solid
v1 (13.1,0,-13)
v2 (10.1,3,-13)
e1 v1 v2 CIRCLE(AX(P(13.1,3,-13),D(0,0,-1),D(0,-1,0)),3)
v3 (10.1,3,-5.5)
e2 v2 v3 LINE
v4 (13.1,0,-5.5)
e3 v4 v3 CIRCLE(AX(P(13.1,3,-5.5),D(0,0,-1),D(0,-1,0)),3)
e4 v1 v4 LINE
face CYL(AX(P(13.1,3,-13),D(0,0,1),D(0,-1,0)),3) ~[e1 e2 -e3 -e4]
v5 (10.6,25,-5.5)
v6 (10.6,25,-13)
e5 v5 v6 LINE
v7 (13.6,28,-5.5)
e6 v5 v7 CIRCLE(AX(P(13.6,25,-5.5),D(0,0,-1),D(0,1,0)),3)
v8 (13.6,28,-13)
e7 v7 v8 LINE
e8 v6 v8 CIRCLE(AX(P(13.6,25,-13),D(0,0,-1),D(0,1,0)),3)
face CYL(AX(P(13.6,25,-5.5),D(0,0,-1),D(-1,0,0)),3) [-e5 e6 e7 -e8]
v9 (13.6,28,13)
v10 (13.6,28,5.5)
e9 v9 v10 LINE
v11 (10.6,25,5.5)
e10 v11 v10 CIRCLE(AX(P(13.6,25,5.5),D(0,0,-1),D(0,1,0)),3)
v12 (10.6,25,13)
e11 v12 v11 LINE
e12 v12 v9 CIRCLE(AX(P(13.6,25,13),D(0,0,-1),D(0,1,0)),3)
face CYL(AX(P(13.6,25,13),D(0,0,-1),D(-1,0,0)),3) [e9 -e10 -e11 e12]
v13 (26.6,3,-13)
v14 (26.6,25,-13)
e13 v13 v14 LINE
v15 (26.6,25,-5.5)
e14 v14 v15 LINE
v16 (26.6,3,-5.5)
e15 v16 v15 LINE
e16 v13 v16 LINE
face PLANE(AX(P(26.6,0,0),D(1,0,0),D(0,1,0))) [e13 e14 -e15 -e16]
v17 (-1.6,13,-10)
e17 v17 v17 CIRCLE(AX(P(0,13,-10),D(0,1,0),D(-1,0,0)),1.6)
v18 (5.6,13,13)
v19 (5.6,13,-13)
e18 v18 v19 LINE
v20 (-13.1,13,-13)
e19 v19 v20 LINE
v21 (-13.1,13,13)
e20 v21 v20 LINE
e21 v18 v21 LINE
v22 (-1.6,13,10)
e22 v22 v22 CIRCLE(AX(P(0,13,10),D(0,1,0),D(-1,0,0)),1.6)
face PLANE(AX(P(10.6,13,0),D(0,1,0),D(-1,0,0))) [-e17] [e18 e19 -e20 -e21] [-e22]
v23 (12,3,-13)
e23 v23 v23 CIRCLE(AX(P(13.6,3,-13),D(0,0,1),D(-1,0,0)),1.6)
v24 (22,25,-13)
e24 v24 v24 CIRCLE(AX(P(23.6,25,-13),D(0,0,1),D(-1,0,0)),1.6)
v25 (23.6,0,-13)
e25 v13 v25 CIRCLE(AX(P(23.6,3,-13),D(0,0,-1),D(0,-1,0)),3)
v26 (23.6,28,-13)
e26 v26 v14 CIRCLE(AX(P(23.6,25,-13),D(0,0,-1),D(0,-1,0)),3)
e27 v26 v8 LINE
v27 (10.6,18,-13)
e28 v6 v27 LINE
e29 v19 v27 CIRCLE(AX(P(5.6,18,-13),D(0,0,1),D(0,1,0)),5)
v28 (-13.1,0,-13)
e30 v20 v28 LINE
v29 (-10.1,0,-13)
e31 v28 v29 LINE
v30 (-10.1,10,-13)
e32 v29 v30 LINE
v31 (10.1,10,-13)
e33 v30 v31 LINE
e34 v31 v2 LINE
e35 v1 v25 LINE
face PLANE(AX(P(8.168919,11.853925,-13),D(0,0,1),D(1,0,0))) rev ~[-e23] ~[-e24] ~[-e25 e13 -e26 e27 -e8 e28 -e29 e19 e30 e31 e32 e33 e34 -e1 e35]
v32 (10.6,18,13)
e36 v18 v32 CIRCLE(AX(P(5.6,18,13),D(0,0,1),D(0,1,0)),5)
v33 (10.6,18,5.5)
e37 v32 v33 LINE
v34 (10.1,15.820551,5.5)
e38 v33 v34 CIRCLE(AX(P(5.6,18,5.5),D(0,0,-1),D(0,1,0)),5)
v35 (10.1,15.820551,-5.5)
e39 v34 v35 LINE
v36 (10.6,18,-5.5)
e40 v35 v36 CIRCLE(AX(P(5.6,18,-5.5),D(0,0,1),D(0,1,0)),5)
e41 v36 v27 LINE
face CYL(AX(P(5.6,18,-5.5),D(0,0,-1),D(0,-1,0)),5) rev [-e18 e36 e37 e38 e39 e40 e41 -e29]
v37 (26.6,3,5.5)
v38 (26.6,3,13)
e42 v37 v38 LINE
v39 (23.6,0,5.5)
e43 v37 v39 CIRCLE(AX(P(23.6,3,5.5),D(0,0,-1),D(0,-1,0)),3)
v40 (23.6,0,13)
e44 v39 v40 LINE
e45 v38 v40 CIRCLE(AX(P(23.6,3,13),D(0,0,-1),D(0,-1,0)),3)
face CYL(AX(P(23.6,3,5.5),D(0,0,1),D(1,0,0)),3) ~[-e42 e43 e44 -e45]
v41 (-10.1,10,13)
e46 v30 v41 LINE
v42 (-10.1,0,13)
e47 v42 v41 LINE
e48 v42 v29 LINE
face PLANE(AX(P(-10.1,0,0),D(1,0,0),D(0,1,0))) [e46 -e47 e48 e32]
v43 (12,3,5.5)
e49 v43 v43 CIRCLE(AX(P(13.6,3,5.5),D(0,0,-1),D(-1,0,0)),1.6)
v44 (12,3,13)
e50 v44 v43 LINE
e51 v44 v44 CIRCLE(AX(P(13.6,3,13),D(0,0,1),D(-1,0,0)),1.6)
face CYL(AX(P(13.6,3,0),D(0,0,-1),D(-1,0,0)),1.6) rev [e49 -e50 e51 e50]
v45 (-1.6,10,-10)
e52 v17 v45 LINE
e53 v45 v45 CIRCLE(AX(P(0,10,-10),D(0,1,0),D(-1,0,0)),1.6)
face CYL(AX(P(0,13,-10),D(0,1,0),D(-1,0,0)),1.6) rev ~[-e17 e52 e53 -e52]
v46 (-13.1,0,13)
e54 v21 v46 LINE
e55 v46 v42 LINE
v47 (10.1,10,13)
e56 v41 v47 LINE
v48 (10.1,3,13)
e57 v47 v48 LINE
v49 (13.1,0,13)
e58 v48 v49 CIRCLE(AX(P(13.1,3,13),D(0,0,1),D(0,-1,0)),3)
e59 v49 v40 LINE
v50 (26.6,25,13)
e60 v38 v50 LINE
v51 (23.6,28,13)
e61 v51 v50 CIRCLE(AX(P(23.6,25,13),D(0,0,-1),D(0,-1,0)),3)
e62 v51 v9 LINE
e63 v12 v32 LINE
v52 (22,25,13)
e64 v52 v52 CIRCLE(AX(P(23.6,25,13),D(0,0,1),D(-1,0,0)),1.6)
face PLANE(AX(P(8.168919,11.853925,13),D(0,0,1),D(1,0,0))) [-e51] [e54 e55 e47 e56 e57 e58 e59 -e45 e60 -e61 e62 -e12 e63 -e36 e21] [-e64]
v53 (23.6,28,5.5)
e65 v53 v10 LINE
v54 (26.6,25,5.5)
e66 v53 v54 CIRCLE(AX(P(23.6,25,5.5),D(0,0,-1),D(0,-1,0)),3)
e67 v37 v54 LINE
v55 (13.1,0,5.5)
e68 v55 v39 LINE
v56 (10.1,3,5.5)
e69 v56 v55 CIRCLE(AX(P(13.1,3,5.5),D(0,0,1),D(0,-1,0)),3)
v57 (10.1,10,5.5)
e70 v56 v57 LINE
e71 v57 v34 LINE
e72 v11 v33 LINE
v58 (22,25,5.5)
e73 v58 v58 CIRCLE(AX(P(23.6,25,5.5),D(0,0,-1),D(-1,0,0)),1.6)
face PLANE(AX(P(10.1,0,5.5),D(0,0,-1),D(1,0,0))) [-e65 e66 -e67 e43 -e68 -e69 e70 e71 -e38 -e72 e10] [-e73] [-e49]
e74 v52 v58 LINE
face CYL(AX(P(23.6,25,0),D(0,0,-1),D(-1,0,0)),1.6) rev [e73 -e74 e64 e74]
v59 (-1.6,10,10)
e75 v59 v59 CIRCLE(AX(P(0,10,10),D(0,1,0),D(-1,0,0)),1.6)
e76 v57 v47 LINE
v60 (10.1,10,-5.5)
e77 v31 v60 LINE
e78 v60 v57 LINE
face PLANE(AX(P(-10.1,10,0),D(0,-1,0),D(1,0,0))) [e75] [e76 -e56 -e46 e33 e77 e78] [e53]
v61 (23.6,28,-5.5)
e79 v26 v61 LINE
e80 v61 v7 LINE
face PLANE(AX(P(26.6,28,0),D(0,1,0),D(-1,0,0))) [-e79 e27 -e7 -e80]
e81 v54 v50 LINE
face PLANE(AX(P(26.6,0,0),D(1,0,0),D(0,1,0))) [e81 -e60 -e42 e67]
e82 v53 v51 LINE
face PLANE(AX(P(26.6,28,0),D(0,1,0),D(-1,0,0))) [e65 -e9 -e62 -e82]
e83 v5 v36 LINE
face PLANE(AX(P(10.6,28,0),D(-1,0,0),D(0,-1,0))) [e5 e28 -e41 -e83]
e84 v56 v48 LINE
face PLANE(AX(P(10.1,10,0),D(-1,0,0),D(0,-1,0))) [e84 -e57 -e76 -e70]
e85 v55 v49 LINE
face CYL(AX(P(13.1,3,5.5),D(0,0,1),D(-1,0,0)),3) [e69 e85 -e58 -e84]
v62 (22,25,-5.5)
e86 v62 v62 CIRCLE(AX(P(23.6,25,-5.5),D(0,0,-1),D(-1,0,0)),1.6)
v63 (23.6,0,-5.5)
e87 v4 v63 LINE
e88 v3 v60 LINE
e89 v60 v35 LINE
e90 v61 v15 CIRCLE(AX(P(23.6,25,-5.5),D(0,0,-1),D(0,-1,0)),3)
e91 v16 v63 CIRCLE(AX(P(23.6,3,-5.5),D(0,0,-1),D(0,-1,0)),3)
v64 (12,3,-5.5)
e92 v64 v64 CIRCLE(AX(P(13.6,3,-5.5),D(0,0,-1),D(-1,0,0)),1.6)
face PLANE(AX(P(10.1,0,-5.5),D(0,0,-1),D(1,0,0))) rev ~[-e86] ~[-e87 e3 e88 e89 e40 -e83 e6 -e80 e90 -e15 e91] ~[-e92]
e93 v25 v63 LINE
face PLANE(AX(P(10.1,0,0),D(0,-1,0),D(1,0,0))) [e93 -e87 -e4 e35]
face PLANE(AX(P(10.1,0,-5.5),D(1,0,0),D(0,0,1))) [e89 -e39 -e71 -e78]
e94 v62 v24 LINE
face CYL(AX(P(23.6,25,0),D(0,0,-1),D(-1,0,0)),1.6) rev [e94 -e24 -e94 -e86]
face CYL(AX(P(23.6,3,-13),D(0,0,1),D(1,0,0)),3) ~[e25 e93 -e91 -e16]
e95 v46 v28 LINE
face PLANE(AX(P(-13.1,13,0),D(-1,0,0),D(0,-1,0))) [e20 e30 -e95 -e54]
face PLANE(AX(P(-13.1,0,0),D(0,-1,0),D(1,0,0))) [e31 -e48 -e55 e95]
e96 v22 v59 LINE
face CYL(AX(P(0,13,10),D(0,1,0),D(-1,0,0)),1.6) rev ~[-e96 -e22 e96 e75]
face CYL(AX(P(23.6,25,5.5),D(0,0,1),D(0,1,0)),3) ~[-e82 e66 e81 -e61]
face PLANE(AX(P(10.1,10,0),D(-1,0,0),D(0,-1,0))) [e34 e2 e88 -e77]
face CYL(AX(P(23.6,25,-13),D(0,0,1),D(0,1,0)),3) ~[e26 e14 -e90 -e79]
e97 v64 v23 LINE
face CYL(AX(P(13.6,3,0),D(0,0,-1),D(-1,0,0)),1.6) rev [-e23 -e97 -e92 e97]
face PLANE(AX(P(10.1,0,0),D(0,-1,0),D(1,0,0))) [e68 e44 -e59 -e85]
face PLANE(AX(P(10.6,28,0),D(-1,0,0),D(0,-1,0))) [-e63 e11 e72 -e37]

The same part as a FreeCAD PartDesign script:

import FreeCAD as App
import Part
import Sketcher
Q = App.Units.Quantity


def edges_at(feature, points):
    """Names of the edges that pass closest to the given points."""
    edges = feature.Shape.Edges
    near = lambda p: min(range(len(edges)), key=lambda i: edges[i].distToShape(Part.Vertex(*p))[0])
    return sorted({f"Edge{near(p) + 1}" for p in points})


def add_polygon(sketch, points):
    """Adds a closed chain of lines whose ends are joined by coincident constraints."""
    first, n = sketch.GeometryCount, len(points)
    for a, b in zip(points, points[1:] + points[:1]):
        sketch.addGeometry(Part.LineSegment(App.Vector(*a, 0), App.Vector(*b, 0)), False)
    for i in range(n):
        sketch.addConstraint(Sketcher.Constraint("Coincident", first + i, 2, first + (i + 1) % n, 1))

doc = App.newDocument("Part")
body = doc.addObject("PartDesign::Body", "Body")

sketch1 = doc.addObject("Sketcher::SketchObject", "Sketch")
body.addObject(sketch1)
sketch1.AttachmentSupport = (doc.XY_Plane, [""])
sketch1.MapMode = "FlatFace"
add_polygon(sketch1, [(-10.1, 0), (-10.1, 10), (10.1, 10), (10.1, 0), (26.6, 0), (26.6, 28), (10.6, 28), (10.6, 13), (-13.1, 13), (-13.1, 0)])
sketch1.addGeometry(Part.Circle(App.Vector(13.6, 3, 0), App.Vector(0, 0, 1), 1.6), False)
sketch1.addGeometry(Part.Circle(App.Vector(23.6, 25, 0), App.Vector(0, 0, 1), 1.6), False)
sketch1.addConstraint(Sketcher.Constraint("Vertical", 0))
sketch1.addConstraint(Sketcher.Constraint("Horizontal", 1))
sketch1.addConstraint(Sketcher.Constraint("Vertical", 2))
sketch1.addConstraint(Sketcher.Constraint("Horizontal", 3))
sketch1.addConstraint(Sketcher.Constraint("Vertical", 4))
sketch1.addConstraint(Sketcher.Constraint("Horizontal", 5))
sketch1.addConstraint(Sketcher.Constraint("Vertical", 6))
sketch1.addConstraint(Sketcher.Constraint("Horizontal", 7))
sketch1.addConstraint(Sketcher.Constraint("Vertical", 8))
sketch1.addConstraint(Sketcher.Constraint("Horizontal", 9))
sketch1.addConstraint(Sketcher.Constraint("Equal", 10, 11))
sketch1.addConstraint(Sketcher.Constraint("Symmetric", 2, 2, 9, 2, -1, 1))
sketch1.addConstraint(Sketcher.Constraint("PointOnObject", 2, 2, -1))
sketch1.addConstraint(Sketcher.Constraint("Diameter", 10, Q("3.2 mm")))
sketch1.addConstraint(Sketcher.Constraint("DistanceX", 5, 2, 5, 1, Q("16 mm")))
sketch1.addConstraint(Sketcher.Constraint("DistanceX", 9, 1, 9, 2, Q("3 mm")))
sketch1.addConstraint(Sketcher.Constraint("DistanceY", 0, 1, 0, 2, Q("10 mm")))
sketch1.addConstraint(Sketcher.Constraint("DistanceY", 4, 1, 4, 2, Q("28 mm")))
sketch1.addConstraint(Sketcher.Constraint("DistanceY", 6, 2, 6, 1, Q("15 mm")))
sketch1.addConstraint(Sketcher.Constraint("DistanceX", 1, 1, 1, 2, Q("20.2 mm")))
sketch1.addConstraint(Sketcher.Constraint("DistanceX", 3, 1, 3, 2, Q("16.5 mm")))
sketch1.addConstraint(Sketcher.Constraint("DistanceY", -1, 1, 10, 3, Q("3 mm")))
sketch1.addConstraint(Sketcher.Constraint("DistanceY", -1, 1, 11, 3, Q("25 mm")))
sketch1.addConstraint(Sketcher.Constraint("DistanceX", 10, 3, 11, 3, Q("10 mm")))
sketch1.addConstraint(Sketcher.Constraint("DistanceX", 10, 3, 3, 2, Q("13 mm")))
pad1 = doc.addObject("PartDesign::Pad", "Pad")
body.addObject(pad1)
pad1.Profile = sketch1
pad1.Length = 26
pad1.Midplane = True

sketch2 = doc.addObject("Sketcher::SketchObject", "Sketch001")
body.addObject(sketch2)
sketch2.AttachmentSupport = (doc.XZ_Plane, [""])
sketch2.MapMode = "FlatFace"
add_polygon(sketch2, [(10.1, 5.5), (10.1, -5.5), (26.6, -5.5), (26.6, 5.5)])
sketch2.addConstraint(Sketcher.Constraint("Vertical", 0))
sketch2.addConstraint(Sketcher.Constraint("Horizontal", 1))
sketch2.addConstraint(Sketcher.Constraint("Vertical", 2))
sketch2.addConstraint(Sketcher.Constraint("Horizontal", 3))
sketch2.addConstraint(Sketcher.Constraint("DistanceY", 0, 2, 0, 1, Q("11 mm")))
sketch2.addConstraint(Sketcher.Constraint("DistanceX", 1, 1, 1, 2, Q("16.5 mm")))
sketch2.addConstraint(Sketcher.Constraint("DistanceX", -1, 1, 0, 2, Q("10.1 mm")))
sketch2.addConstraint(Sketcher.Constraint("DistanceY", 0, 2, -1, 1, Q("5.5 mm")))
pocket1 = doc.addObject("PartDesign::Pocket", "Pocket")
body.addObject(pocket1)
pocket1.Profile = sketch2
pocket1.Type = "ThroughAll"

sketch3 = doc.addObject("Sketcher::SketchObject", "Sketch002")
body.addObject(sketch3)
sketch3.AttachmentSupport = (doc.XZ_Plane, [""])
sketch3.MapMode = "FlatFace"
sketch3.AttachmentOffset = App.Placement(App.Vector(0, 0, -13), App.Rotation())
sketch3.addGeometry(Part.Circle(App.Vector(0, -10, 0), App.Vector(0, 0, 1), 1.6), False)
sketch3.addGeometry(Part.Circle(App.Vector(0, 10, 0), App.Vector(0, 0, 1), 1.6), False)
sketch3.addConstraint(Sketcher.Constraint("Equal", 0, 1))
sketch3.addConstraint(Sketcher.Constraint("Symmetric", 0, 3, 1, 3, -1, 1))
sketch3.addConstraint(Sketcher.Constraint("PointOnObject", 0, 3, -2))
sketch3.addConstraint(Sketcher.Constraint("Diameter", 0, Q("3.2 mm")))
sketch3.addConstraint(Sketcher.Constraint("DistanceY", 0, 3, -1, 1, Q("10 mm")))
pocket2 = doc.addObject("PartDesign::Pocket", "Pocket001")
body.addObject(pocket2)
pocket2.Profile = sketch3
pocket2.Type = "ThroughAll"
pocket2.Reversed = True
doc.recompute()

fillet = doc.addObject("PartDesign::Fillet", "Fillet")
body.addObject(fillet)
fillet.Base = (pocket2, edges_at(pocket2, [(10.6, 13, -9.25)]))
fillet.Radius = 5
doc.recompute()

fillet2 = doc.addObject("PartDesign::Fillet", "Fillet001")
body.addObject(fillet2)
fillet2.Base = (fillet, edges_at(fillet, [
    (10.6, 28, 9.25),
    (26.6, 28, 9.25),
    (26.6, 0, 9.25),
    (10.1, 0, 9.25),
    (10.6, 28, -9.25),
    (26.6, 28, -9.25),
    (26.6, 0, -9.25),
    (10.1, 0, -9.25),
]))
fillet2.Radius = 3

doc.recompute()
